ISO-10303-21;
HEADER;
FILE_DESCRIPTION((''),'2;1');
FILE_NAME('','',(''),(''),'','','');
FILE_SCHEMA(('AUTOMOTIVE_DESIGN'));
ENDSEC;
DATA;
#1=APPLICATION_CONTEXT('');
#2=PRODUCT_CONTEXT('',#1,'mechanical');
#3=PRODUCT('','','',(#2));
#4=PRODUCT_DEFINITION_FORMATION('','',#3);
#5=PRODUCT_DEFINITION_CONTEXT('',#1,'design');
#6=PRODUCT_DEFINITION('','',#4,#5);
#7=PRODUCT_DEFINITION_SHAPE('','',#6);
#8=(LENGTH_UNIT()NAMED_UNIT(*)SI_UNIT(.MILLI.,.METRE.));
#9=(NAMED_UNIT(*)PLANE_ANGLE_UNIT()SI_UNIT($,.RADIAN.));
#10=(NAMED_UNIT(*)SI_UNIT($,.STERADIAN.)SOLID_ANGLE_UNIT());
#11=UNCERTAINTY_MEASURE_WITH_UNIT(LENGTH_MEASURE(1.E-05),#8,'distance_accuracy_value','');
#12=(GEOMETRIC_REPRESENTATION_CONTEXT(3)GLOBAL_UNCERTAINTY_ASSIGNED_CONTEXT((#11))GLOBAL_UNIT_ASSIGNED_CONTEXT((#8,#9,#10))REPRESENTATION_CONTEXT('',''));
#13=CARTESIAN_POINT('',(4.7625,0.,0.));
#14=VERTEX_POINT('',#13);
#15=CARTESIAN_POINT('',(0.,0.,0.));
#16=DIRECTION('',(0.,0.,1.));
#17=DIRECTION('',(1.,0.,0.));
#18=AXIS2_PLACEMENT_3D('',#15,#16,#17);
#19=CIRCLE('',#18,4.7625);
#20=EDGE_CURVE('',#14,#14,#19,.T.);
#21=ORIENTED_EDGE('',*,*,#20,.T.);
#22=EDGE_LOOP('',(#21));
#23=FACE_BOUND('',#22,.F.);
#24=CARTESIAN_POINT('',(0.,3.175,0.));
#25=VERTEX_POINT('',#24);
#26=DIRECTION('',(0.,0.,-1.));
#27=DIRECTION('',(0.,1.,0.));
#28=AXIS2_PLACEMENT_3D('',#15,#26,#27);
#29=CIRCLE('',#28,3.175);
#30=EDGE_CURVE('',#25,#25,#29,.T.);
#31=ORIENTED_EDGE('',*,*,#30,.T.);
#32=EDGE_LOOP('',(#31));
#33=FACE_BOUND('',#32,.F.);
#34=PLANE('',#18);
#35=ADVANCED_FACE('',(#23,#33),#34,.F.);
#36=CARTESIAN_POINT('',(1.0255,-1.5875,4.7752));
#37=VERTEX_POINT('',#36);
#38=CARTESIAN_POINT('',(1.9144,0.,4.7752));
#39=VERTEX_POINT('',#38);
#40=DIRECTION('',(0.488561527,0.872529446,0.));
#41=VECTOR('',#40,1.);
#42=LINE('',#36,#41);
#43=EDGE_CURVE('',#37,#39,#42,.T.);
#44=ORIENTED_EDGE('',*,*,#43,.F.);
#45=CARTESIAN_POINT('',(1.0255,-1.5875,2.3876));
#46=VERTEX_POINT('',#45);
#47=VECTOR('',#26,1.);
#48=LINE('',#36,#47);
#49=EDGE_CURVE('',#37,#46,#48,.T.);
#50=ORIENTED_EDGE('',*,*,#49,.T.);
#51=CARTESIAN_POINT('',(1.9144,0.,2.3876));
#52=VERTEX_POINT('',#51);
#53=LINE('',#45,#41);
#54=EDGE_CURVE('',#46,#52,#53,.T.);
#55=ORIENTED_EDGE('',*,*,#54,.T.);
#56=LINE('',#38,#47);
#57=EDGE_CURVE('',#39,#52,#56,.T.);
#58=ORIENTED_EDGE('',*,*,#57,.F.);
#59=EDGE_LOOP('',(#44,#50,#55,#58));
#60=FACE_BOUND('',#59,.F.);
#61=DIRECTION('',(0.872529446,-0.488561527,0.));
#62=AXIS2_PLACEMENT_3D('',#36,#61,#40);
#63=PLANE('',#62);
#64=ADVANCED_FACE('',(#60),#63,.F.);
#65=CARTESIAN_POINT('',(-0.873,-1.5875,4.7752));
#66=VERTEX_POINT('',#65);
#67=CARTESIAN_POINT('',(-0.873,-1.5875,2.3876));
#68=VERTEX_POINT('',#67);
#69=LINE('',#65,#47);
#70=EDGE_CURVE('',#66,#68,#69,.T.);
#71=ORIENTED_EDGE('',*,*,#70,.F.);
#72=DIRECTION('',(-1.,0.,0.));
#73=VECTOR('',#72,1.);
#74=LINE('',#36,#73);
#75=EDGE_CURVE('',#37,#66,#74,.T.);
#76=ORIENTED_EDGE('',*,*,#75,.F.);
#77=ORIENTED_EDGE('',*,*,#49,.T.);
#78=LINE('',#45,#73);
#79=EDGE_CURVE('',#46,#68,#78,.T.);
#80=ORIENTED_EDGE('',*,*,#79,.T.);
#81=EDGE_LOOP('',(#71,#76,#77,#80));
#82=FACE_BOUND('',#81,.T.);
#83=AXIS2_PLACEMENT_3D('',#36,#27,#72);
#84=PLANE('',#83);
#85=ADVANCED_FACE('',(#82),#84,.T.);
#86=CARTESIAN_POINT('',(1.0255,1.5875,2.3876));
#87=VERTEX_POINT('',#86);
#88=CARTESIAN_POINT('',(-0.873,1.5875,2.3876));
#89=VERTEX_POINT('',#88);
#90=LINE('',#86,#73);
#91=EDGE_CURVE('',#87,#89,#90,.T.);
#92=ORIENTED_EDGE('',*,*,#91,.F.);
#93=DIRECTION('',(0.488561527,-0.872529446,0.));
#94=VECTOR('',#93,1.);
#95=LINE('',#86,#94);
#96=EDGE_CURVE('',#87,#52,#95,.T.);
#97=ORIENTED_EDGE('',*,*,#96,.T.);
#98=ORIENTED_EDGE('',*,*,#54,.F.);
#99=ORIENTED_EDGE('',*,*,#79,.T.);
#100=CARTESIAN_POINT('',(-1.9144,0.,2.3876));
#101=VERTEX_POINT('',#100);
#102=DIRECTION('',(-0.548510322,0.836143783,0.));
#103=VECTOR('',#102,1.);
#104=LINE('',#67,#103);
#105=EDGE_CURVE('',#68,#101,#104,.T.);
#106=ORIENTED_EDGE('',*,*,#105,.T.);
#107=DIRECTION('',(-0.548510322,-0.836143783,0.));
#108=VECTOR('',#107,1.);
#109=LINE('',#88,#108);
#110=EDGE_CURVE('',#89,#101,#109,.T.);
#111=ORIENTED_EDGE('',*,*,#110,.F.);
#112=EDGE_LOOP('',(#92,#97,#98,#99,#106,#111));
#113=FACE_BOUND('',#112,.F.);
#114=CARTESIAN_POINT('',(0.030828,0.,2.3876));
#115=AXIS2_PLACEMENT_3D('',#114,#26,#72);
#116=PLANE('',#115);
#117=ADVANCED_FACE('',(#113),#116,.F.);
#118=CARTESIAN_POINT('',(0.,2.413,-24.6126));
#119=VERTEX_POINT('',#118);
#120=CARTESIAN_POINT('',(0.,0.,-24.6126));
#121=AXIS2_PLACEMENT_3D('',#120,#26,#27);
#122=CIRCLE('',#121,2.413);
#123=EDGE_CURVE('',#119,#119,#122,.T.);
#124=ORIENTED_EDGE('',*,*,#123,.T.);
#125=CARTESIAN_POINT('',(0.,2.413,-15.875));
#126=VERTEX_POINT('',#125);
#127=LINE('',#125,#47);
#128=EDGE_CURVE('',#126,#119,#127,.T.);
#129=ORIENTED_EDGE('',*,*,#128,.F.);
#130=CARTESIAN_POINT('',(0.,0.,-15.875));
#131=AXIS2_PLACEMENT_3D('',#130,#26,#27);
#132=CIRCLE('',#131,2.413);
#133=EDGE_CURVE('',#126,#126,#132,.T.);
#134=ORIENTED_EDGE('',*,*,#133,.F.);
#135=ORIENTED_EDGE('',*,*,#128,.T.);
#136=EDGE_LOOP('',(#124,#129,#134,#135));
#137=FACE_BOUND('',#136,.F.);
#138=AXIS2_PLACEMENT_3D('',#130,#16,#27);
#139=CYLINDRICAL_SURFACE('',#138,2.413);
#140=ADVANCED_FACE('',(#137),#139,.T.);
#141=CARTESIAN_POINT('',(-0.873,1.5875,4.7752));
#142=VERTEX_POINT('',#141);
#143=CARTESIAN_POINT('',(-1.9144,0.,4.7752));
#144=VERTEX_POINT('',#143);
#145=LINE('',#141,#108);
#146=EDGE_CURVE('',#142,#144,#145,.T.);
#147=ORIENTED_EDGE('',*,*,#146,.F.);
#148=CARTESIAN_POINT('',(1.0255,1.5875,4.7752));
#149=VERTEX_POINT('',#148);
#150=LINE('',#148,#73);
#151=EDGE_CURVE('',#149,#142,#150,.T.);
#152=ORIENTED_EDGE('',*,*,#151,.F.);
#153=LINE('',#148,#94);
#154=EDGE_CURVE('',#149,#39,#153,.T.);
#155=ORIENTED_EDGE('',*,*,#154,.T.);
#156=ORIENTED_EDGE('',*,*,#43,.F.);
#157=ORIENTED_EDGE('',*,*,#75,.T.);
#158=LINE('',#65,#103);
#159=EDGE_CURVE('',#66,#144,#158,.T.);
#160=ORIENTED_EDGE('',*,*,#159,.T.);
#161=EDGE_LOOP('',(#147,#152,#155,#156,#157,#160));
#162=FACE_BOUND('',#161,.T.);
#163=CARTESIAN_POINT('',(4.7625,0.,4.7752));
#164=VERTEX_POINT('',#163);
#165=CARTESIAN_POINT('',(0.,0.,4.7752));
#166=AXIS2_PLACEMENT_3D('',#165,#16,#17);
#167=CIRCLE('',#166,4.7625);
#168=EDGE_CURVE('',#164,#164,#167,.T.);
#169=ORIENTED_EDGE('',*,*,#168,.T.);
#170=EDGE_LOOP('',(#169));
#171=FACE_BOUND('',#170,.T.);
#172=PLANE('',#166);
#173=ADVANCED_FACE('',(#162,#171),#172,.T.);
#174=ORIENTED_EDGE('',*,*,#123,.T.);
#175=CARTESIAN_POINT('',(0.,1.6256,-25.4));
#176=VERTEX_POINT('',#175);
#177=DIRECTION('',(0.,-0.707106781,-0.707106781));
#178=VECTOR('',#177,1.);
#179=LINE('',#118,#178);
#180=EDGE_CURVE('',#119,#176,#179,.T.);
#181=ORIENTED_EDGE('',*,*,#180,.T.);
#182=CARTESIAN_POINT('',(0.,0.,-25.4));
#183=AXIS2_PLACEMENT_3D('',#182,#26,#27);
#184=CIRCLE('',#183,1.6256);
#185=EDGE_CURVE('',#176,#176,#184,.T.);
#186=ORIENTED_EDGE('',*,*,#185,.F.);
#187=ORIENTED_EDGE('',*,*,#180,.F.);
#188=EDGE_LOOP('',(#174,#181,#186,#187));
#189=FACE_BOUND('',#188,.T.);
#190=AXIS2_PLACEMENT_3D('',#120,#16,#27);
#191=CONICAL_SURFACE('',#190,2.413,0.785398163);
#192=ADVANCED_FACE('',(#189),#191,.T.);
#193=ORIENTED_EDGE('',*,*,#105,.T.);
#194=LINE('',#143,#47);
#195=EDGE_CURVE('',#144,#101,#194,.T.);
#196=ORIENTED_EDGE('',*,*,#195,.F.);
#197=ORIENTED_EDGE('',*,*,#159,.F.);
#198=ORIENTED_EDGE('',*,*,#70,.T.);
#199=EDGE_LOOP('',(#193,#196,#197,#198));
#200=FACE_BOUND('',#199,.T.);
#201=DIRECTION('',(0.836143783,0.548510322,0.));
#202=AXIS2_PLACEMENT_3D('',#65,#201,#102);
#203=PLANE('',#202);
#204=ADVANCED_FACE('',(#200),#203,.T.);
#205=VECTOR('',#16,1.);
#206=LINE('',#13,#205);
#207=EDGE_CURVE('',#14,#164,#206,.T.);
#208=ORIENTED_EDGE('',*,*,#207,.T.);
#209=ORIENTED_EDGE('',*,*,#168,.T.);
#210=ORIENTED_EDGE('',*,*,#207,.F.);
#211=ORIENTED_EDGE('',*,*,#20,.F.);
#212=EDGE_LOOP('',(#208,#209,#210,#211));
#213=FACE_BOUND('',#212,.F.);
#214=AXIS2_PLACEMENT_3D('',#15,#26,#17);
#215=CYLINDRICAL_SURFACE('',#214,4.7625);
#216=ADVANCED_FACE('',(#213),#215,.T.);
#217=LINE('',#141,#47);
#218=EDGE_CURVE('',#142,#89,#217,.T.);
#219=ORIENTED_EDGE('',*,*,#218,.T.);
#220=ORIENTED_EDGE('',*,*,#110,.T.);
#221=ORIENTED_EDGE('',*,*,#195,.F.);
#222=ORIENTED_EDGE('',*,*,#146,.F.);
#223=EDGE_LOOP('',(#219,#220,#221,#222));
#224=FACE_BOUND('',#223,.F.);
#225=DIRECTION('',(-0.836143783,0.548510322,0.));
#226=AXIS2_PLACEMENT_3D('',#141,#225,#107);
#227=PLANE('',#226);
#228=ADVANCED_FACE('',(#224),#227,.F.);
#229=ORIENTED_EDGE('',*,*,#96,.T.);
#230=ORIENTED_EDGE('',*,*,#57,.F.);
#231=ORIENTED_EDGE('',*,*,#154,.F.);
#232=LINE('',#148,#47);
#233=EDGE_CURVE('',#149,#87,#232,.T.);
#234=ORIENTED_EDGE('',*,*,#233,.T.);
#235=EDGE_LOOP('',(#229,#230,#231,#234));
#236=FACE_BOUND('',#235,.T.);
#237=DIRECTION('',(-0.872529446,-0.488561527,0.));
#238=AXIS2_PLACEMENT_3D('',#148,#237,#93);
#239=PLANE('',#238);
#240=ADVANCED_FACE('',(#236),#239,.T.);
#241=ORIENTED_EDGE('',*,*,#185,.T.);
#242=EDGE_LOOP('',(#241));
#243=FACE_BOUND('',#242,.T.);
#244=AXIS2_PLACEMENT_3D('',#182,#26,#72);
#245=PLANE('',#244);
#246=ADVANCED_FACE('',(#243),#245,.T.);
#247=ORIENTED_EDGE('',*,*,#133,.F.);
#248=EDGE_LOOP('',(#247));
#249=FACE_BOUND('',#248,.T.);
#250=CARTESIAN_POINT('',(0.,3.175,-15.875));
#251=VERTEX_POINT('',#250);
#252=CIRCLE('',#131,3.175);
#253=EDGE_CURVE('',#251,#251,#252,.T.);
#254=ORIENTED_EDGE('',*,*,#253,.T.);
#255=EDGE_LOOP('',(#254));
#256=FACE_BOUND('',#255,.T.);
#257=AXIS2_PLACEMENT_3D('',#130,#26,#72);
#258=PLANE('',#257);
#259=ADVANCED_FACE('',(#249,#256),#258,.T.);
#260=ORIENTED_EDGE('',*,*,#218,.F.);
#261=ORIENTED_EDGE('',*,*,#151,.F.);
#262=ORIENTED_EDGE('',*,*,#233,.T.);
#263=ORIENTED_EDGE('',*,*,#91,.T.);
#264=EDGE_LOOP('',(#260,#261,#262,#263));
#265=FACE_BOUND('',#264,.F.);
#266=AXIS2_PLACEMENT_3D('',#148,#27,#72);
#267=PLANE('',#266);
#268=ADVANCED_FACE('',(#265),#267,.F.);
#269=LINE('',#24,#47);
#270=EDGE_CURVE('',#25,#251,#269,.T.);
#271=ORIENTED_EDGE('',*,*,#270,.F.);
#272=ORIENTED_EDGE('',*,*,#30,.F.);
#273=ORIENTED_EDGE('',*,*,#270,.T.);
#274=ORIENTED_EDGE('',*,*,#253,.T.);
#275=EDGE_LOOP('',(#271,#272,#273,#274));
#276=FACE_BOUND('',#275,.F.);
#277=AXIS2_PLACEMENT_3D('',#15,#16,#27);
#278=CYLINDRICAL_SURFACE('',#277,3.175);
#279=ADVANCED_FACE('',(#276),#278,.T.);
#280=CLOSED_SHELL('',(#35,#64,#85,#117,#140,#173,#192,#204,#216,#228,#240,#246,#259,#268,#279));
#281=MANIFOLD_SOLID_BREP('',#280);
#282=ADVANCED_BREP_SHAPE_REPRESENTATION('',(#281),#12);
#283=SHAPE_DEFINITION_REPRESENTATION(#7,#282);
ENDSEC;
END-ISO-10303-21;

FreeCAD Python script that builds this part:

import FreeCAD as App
import Part
import Sketcher

V = App.Vector
Q = App.Units.Quantity


def edges_at(feature, points):
    """Names of the edges that pass closest to the given points."""
    edges = feature.Shape.Edges
    near = lambda p: min(range(len(edges)), key=lambda i: edges[i].distToShape(Part.Vertex(*p))[0])
    return sorted({f"Edge{near(p) + 1}" for p in points})


def add_polygon(sketch, points):
    """Adds a closed chain of lines whose ends are joined by coincident constraints."""
    first, n = sketch.GeometryCount, len(points)
    for a, b in zip(points, points[1:] + points[:1]):
        sketch.addGeometry(Part.LineSegment(App.Vector(*a, 0), App.Vector(*b, 0)), False)
    for i in range(n):
        sketch.addConstraint(Sketcher.Constraint("Coincident", first + i, 2, first + (i + 1) % n, 1))

doc = App.newDocument("Part")
params = doc.addObject("Spreadsheet::Sheet", "Params")
for row, (alias, value) in enumerate([
    ("sketch1_diameter", "0.375 in"),
    ("pad1_length", "0.188 in"),
    ("sketch2_diameter", "0.25 in"),
    ("pad2_length", "0.625 in"),
    ("sketch3_diameter", "0.19 in"),
    ("pad3_length", "0.375 in"),
    ("pocket1_length", "0.094 in"),
    ("chamfer_size", "0.031 in"),
], start=1):
    params.set(f"A{row}", alias)
    params.set(f"B{row}", "=" + value)
    params.setAlias(f"B{row}", alias)

body = doc.addObject("PartDesign::Body", "Body")

sketch1 = doc.addObject("Sketcher::SketchObject", "Sketch")
body.addObject(sketch1)
sketch1.AttachmentSupport = (doc.XY_Plane, [""])
sketch1.MapMode = "FlatFace"
sketch1.addGeometry(Part.Circle(V(0, 0, 0), V(0, 0, 1), 4.8), False)
sketch1.addConstraint(Sketcher.Constraint("Coincident", 0, 3, -1, 1))
sketch1.addConstraint(Sketcher.Constraint("Diameter", 0, Q("0.375 in")))
sketch1.setExpression("Constraints[1]", "Params.sketch1_diameter")
pad1 = doc.addObject("PartDesign::Pad", "Pad")
body.addObject(pad1)
pad1.Profile = sketch1
pad1.setExpression("Length", "Params.pad1_length")

sketch2 = doc.addObject("Sketcher::SketchObject", "Sketch001")
body.addObject(sketch2)
sketch2.AttachmentSupport = (doc.XY_Plane, [""])
sketch2.MapMode = "FlatFace"
sketch2.addGeometry(Part.Circle(V(0, 0, 0), V(0, 0, 1), 3.2), False)
sketch2.addConstraint(Sketcher.Constraint("Coincident", 0, 3, -1, 1))
sketch2.addConstraint(Sketcher.Constraint("Diameter", 0, Q("0.25 in")))
sketch2.setExpression("Constraints[1]", "Params.sketch2_diameter")
pad2 = doc.addObject("PartDesign::Pad", "Pad001")
body.addObject(pad2)
pad2.Profile = sketch2
pad2.setExpression("Length", "Params.pad2_length")
pad2.Reversed = True

sketch3 = doc.addObject("Sketcher::SketchObject", "Sketch002")
body.addObject(sketch3)
sketch3.AttachmentSupport = (doc.XY_Plane, [""])
sketch3.MapMode = "FlatFace"
sketch3.AttachmentOffset = App.Placement(V(0, 0, -0.625 * 25.4), App.Rotation())
sketch3.addGeometry(Part.Circle(V(0, 0, 0), V(0, 0, 1), 2.4), False)
sketch3.addConstraint(Sketcher.Constraint("Coincident", 0, 3, -1, 1))
sketch3.addConstraint(Sketcher.Constraint("Diameter", 0, Q("0.19 in")))
sketch3.setExpression("Constraints[1]", "Params.sketch3_diameter")
pad3 = doc.addObject("PartDesign::Pad", "Pad002")
body.addObject(pad3)
pad3.Profile = sketch3
pad3.setExpression("Length", "Params.pad3_length")
pad3.Reversed = True

sketch4 = doc.addObject("Sketcher::SketchObject", "Sketch003")
body.addObject(sketch4)
sketch4.AttachmentSupport = (doc.XY_Plane, [""])
sketch4.MapMode = "FlatFace"
sketch4.AttachmentOffset = App.Placement(V(0, 0, 0.188 * 25.4), App.Rotation())
add_polygon(sketch4, [(-1.9, 0), (-0.9, -1.6), (1, -1.6), (1.9, 0), (1, 1.6), (-0.9, 1.6)])
sketch4.addConstraint(Sketcher.Constraint("Horizontal", 1))
sketch4.addConstraint(Sketcher.Constraint("Horizontal", 4))
sketch4.addConstraint(Sketcher.Constraint("Symmetric", 2, 2, 5, 2, -1, 1))
sketch4.addConstraint(Sketcher.Constraint("Symmetric", 1, 2, 3, 2, -1))
sketch4.addConstraint(Sketcher.Constraint("PointOnObject", 2, 2, -1))
sketch4.addConstraint(Sketcher.Constraint("Vertical", 0, 2, 4, 2))
sketch4.addConstraint(Sketcher.Constraint("DistanceY", 0, 2, -1, 1, Q("0.0625 in")))
sketch4.addConstraint(Sketcher.Constraint("DistanceX", 1, 2, 2, 2, Q("0.035 in")))
sketch4.addConstraint(Sketcher.Constraint("DistanceX", 5, 2, 0, 2, Q("0.041 in")))
sketch4.addConstraint(Sketcher.Constraint("DistanceX", 1, 1, 1, 2, Q("1.8985 mm")))
pocket1 = doc.addObject("PartDesign::Pocket", "Pocket")
body.addObject(pocket1)
pocket1.Profile = sketch4
pocket1.setExpression("Length", "Params.pocket1_length")
doc.recompute()

chamfer = doc.addObject("PartDesign::Chamfer", "Chamfer")
body.addObject(chamfer)
chamfer.Base = (pocket1, edges_at(pocket1, [(0, -2.413, -25.4)]))
chamfer.setExpression("Size", "Params.chamfer_size")

doc.recompute()
